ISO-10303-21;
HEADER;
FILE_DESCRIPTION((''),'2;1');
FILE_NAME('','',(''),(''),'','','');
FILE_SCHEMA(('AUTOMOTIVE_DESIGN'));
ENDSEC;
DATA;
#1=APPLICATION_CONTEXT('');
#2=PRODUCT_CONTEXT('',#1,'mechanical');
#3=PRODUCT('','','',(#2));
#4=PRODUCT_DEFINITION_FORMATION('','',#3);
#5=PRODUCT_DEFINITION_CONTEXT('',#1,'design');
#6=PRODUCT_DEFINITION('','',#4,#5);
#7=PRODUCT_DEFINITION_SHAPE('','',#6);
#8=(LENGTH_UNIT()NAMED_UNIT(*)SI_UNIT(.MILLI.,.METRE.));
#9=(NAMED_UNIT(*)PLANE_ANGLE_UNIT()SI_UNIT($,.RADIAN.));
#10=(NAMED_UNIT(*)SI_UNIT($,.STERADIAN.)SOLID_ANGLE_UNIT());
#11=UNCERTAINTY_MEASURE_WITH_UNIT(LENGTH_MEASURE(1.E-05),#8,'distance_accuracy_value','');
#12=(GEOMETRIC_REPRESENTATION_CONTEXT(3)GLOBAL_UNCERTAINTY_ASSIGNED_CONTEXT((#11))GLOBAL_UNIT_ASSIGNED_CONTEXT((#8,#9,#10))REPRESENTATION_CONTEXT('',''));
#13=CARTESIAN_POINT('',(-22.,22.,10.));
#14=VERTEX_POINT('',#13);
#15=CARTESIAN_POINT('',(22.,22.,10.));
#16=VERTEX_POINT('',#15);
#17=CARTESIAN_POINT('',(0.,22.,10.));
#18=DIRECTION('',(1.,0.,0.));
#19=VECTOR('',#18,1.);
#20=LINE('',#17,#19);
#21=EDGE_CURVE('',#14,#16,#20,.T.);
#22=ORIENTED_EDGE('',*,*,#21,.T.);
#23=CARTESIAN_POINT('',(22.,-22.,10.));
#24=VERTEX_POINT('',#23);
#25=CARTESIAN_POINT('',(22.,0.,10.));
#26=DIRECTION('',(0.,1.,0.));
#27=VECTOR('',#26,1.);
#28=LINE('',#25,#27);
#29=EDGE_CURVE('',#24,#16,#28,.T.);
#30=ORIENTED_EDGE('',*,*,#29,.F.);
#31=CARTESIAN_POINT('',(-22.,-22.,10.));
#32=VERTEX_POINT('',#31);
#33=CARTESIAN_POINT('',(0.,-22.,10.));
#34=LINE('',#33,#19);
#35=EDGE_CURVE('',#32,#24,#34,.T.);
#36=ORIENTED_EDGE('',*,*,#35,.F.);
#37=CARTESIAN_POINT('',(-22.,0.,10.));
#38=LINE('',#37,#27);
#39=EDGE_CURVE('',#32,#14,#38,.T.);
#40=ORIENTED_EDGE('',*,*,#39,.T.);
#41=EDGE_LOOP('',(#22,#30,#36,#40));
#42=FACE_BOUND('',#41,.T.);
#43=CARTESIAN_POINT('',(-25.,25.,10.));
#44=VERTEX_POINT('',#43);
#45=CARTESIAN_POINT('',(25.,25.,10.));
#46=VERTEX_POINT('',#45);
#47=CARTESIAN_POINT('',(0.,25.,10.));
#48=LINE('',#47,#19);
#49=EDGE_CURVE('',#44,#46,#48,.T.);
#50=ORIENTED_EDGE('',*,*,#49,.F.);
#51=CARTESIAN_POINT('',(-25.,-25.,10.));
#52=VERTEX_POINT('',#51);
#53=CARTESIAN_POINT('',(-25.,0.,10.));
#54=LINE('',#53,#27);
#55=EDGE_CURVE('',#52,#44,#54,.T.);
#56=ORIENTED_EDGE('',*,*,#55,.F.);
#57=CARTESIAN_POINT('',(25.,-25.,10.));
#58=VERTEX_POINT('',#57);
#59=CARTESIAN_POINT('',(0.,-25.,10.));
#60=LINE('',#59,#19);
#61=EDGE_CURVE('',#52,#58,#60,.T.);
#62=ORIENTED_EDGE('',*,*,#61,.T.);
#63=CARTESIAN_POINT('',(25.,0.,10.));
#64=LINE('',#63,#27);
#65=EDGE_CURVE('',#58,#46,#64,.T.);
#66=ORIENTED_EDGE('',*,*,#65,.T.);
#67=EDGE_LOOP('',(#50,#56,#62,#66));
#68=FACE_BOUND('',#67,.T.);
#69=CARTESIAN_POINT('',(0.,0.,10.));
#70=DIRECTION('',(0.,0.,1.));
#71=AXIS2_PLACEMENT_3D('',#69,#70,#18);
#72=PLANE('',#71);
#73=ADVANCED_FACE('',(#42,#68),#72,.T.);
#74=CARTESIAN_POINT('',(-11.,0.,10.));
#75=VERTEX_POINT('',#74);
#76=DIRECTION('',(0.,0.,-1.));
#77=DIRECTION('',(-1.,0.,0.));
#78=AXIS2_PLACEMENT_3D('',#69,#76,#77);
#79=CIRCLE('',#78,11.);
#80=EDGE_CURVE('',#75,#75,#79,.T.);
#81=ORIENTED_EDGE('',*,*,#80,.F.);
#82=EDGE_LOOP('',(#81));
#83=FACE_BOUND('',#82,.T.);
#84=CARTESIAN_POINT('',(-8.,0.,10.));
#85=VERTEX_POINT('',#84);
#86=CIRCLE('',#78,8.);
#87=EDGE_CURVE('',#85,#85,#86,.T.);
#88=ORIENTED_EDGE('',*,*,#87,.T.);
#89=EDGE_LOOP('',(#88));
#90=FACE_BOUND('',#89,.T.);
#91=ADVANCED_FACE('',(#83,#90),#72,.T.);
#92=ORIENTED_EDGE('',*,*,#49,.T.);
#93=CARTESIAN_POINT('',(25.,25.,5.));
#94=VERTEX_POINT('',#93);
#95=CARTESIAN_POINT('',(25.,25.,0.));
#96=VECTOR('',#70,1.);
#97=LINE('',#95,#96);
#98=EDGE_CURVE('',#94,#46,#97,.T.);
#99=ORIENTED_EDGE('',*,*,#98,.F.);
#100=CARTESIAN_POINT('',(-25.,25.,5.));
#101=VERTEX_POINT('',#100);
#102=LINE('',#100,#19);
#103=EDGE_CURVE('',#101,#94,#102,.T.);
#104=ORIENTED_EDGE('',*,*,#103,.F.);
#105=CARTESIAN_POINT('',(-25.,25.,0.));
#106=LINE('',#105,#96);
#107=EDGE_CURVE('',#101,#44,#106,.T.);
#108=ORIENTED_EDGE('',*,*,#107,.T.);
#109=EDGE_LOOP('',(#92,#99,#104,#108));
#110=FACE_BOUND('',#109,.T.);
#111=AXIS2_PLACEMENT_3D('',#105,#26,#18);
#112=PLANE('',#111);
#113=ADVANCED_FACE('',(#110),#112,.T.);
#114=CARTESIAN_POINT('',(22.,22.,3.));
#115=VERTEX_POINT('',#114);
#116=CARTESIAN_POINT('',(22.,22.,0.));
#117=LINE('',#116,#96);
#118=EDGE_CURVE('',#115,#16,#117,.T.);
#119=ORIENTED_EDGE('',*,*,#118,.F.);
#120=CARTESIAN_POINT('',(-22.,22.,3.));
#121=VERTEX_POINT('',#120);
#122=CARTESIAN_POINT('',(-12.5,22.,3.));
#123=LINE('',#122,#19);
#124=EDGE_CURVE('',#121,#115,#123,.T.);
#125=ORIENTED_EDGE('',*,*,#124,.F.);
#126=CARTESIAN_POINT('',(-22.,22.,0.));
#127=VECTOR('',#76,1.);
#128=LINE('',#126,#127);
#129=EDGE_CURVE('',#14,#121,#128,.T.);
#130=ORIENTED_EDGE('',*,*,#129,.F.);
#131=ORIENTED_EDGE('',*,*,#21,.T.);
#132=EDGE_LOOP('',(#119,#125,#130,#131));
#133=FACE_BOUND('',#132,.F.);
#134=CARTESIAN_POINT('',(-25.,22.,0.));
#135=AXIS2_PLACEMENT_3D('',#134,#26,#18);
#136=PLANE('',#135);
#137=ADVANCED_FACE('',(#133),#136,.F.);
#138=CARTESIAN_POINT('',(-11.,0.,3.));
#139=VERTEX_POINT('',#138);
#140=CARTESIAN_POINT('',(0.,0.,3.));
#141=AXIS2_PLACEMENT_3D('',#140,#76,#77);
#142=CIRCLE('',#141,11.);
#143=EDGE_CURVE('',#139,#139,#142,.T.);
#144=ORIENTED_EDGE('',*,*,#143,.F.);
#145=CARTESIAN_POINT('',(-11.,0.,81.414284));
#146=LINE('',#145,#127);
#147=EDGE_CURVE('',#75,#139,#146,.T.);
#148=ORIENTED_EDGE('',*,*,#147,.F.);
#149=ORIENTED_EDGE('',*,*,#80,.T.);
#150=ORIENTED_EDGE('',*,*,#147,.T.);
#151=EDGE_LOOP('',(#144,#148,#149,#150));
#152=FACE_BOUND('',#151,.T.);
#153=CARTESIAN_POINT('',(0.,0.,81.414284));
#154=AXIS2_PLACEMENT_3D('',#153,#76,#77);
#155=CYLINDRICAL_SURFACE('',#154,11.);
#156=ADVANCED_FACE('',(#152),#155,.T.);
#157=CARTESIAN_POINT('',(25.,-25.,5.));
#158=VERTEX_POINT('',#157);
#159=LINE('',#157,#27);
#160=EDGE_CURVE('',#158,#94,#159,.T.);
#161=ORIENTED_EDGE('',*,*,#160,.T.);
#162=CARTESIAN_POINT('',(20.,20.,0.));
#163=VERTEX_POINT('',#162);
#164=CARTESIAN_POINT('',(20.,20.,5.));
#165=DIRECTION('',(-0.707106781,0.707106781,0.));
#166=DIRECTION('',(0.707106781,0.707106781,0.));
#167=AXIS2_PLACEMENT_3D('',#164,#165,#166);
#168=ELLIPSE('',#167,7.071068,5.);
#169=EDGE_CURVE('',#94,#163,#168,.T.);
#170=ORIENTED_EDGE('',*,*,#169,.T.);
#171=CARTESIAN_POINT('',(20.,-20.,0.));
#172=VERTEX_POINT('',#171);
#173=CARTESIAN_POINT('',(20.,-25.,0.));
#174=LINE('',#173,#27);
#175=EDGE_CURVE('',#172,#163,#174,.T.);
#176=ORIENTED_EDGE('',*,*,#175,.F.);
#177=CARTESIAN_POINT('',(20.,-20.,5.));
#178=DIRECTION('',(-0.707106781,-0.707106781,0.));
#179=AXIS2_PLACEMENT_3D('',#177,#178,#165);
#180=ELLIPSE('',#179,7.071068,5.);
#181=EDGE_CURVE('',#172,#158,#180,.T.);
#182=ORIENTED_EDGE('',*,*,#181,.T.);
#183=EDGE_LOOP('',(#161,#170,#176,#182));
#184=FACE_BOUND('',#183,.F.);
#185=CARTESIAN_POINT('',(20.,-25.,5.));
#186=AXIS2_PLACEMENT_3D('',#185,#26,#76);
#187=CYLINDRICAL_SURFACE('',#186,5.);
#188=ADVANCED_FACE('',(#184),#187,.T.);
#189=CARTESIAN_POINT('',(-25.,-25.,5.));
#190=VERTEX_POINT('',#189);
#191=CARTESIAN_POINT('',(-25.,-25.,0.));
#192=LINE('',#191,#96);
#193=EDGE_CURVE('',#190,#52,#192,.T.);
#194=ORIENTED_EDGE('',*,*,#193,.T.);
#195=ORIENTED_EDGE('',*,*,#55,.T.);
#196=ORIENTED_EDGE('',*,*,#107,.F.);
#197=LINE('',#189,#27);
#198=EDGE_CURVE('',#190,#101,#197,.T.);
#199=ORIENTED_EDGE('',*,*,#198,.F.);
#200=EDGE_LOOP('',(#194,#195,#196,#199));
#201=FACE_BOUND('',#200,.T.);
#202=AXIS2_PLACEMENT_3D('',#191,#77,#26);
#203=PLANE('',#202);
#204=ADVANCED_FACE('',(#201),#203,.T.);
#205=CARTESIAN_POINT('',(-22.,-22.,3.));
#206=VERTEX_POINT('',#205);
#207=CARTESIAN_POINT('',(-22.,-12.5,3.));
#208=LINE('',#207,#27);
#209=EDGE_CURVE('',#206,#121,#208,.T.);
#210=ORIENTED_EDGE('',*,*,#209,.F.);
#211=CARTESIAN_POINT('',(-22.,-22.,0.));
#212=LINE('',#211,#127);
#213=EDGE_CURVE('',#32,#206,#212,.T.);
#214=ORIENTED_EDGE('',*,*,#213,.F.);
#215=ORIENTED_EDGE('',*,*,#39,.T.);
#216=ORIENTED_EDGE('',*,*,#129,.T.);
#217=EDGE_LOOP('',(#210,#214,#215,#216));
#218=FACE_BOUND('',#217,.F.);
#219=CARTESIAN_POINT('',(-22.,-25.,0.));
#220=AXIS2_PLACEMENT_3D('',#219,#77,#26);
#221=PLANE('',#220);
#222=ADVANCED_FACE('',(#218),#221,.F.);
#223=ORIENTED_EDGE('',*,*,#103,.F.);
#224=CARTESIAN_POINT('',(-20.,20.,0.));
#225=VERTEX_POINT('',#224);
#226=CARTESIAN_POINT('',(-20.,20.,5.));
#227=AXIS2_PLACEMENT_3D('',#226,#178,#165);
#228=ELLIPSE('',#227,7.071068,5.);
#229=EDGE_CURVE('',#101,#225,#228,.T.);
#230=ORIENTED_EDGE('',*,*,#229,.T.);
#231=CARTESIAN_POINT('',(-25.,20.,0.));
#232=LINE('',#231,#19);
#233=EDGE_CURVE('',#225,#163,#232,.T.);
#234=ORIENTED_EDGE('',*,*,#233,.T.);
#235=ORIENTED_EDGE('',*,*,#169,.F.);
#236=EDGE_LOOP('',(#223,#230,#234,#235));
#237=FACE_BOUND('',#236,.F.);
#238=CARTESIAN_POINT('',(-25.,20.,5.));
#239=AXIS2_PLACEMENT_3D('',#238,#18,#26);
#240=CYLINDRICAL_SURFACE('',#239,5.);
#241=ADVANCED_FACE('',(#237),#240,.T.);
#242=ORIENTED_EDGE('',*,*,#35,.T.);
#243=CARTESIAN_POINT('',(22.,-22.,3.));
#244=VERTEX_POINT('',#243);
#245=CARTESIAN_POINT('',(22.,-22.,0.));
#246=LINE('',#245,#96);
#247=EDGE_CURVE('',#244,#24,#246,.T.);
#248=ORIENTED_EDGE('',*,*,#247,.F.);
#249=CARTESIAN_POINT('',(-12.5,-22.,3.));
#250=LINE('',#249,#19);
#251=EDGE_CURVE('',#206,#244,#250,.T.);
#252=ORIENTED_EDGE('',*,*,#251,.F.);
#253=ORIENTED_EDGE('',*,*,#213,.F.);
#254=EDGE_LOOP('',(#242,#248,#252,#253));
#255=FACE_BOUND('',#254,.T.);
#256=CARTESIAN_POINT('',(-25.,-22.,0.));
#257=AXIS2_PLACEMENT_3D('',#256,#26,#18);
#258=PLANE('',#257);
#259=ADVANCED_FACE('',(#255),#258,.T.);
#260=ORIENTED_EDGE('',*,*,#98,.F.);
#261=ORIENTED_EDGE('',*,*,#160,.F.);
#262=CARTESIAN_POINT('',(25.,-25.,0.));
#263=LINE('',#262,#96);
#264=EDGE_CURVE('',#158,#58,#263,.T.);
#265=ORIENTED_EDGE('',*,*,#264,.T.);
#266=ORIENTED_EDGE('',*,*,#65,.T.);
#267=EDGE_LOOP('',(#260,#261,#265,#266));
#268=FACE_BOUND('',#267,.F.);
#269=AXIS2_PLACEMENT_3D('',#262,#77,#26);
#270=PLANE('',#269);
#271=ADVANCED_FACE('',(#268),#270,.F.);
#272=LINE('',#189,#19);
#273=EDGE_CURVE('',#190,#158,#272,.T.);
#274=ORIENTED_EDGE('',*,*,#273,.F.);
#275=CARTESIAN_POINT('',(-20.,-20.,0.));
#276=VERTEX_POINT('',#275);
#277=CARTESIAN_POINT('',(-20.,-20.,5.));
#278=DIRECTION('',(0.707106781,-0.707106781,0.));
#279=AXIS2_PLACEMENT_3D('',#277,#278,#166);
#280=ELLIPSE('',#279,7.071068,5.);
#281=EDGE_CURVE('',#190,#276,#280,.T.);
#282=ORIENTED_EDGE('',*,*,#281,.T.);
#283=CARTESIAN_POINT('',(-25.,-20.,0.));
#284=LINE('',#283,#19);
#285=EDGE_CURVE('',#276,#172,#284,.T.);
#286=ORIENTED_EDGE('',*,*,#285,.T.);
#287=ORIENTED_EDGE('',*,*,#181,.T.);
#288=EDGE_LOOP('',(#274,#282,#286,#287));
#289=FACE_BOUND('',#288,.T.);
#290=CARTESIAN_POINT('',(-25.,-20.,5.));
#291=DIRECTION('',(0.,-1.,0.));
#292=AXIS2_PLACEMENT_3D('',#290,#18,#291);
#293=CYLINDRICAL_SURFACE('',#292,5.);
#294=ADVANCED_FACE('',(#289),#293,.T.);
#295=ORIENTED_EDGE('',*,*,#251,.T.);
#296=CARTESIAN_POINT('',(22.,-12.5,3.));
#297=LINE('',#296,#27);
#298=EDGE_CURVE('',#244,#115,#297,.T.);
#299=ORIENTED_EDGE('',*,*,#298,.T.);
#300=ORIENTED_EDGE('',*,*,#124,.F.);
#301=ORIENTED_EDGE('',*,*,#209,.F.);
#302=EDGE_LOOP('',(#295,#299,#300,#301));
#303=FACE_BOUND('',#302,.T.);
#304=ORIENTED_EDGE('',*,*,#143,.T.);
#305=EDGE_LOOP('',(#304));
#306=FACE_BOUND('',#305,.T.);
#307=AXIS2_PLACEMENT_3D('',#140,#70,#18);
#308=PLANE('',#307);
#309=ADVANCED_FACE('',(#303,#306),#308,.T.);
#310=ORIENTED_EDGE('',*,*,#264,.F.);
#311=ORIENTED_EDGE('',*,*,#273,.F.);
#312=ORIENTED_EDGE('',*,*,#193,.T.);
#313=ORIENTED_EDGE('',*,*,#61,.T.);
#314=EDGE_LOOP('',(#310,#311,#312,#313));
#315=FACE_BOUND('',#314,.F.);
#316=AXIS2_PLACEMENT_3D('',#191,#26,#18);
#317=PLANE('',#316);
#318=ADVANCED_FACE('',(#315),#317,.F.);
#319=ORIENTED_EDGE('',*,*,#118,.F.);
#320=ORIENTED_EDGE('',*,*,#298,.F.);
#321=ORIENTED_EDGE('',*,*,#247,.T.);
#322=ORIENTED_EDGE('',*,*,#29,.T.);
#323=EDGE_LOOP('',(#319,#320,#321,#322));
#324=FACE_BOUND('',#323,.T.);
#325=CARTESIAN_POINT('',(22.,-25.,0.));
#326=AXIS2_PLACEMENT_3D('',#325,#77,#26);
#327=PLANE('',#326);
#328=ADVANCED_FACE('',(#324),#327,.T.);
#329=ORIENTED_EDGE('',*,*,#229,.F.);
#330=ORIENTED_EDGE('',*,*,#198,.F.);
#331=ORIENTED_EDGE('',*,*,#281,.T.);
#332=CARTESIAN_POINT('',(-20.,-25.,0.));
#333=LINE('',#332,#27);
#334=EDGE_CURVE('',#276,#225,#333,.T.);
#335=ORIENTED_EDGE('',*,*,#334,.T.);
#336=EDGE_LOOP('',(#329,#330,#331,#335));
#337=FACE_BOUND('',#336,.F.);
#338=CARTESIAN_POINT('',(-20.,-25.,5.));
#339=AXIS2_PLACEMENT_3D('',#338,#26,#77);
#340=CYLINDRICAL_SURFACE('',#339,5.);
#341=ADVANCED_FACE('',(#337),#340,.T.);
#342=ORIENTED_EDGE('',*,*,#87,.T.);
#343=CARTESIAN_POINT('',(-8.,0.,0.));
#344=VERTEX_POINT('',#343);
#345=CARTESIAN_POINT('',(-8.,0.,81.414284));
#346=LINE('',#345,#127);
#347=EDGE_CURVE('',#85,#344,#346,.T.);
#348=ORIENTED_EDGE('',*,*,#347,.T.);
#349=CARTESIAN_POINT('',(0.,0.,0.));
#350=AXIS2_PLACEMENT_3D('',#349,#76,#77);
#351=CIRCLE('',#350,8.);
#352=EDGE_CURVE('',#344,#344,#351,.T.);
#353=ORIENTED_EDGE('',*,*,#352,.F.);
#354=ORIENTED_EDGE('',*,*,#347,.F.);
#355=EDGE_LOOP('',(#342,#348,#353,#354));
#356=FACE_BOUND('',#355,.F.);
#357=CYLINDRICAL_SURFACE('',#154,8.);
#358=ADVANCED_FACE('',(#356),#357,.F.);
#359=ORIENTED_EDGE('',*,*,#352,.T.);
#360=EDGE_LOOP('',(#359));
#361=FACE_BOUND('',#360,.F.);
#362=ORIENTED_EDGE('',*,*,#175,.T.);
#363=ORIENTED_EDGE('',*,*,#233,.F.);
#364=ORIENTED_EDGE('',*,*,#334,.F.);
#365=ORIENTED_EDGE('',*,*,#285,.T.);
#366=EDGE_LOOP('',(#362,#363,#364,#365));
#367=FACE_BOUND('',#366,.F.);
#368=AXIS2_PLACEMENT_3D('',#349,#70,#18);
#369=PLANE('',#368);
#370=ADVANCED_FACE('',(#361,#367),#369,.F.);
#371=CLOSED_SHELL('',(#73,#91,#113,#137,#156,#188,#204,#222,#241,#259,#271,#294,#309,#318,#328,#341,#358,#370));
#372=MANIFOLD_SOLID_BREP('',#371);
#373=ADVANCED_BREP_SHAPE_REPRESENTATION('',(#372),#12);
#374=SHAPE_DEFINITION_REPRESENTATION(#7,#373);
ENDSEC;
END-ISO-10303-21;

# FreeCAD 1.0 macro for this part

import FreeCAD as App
import Part
import Sketcher

V = App.Vector


def edges_at(feature, points):
    """Names of the edges that pass closest to the given points."""
    edges = feature.Shape.Edges
    near = lambda p: min(range(len(edges)), key=lambda i: edges[i].distToShape(Part.Vertex(*p))[0])
    return sorted({f"Edge{near(p) + 1}" for p in points})


def faces_at(feature, points):
    """Names of the faces that lie closest to the given points."""
    faces = feature.Shape.Faces
    near = lambda p: min(range(len(faces)), key=lambda i: faces[i].distToShape(Part.Vertex(*p))[0])
    return sorted({f"Face{near(p) + 1}" for p in points})


def add_polygon(sketch, points):
    """Adds a closed chain of lines whose ends are joined by coincident constraints."""
    first, n = sketch.GeometryCount, len(points)
    for a, b in zip(points, points[1:] + points[:1]):
        sketch.addGeometry(Part.LineSegment(App.Vector(*a, 0), App.Vector(*b, 0)), False)
    for i in range(n):
        sketch.addConstraint(Sketcher.Constraint("Coincident", first + i, 2, first + (i + 1) % n, 1))

doc = App.newDocument("Part")
params = doc.addObject("Spreadsheet::Sheet", "Params")
for row, (alias, value) in enumerate([
    ("sketch1_width", "50 mm"),
    ("pad1_length", "10 mm"),
    ("sketch2_diameter", "16 mm"),
    ("hole_diameter", "16 mm"),
    ("thickness_wall", "3 mm"),
    ("fillet_radius", "5 mm"),
], start=1):
    params.set(f"A{row}", alias)
    params.set(f"B{row}", "=" + value)
    params.setAlias(f"B{row}", alias)

body = doc.addObject("PartDesign::Body", "Body")

# Sketch on XY plane
sketch1 = body.newObject("Sketcher::SketchObject", "Sketch")
sketch1.AttachmentSupport = (doc.getObject("XY_Plane"), [""])
sketch1.MapMode = "FlatFace"
add_polygon(sketch1, [(-25, 25), (-25, -25), (25, -25), (25, 25)])  # lines 0-3
sketch1.addConstraint([
    Sketcher.Constraint("Vertical", 0),
    Sketcher.Constraint("Horizontal", 1),
    Sketcher.Constraint("Vertical", 2),
    Sketcher.Constraint("Horizontal", 3),
    Sketcher.Constraint("Symmetric", 0, 2, 2, 2, -1, 1),
    Sketcher.Constraint("Equal", 3, 0),
    Sketcher.Constraint("DistanceX", 1, 1, 1, 2, 50.0),
])
sketch1.setExpression("Constraints[10]", "Params.sketch1_width")
pad1 = body.newObject("PartDesign::Pad", "Pad")
pad1.Profile = sketch1
pad1.setExpression("Length", "Params.pad1_length")

# Sketch on XY plane
sketch2 = body.newObject("Sketcher::SketchObject", "Sketch001")
sketch2.AttachmentSupport = (doc.getObject("XY_Plane"), [""])
sketch2.MapMode = "FlatFace"
sketch2.AttachmentOffset = App.Placement(V(0, 0, 10), App.Rotation())
sketch2.addGeometry(Part.Circle(V(0, 0, 0), V(0, 0, 1), 8), False)
sketch2.addConstraint([
    Sketcher.Constraint("Coincident", 0, 3, -1, 1),
    Sketcher.Constraint("Diameter", 0, 16.0),
])
sketch2.setExpression("Constraints[1]", "Params.sketch2_diameter")
doc.recompute()
hole = body.newObject("PartDesign::Hole", "Hole")
hole.Profile = sketch2
hole.ThreadType = "None"
hole.setExpression("Diameter", "Params.hole_diameter")
hole.DepthType = "ThroughAll"
doc.recompute()

thickness = body.newObject("PartDesign::Thickness", "Thickness")
thickness.Base = (hole, faces_at(hole, [(-10, -10, 10)]))
thickness.setExpression("Value", "Params.thickness_wall")
thickness.Reversed = True
thickness.Join = "Arc"
doc.recompute()

fillet = body.newObject("PartDesign::Fillet", "Fillet")
fillet.Base = (thickness, edges_at(thickness, [
    (-25, 0, 0),
    (0, 25, 0),
    (25, 0, 0),
    (0, -25, 0),
]))
fillet.setExpression("Radius", "Params.fillet_radius")

doc.recompute()
